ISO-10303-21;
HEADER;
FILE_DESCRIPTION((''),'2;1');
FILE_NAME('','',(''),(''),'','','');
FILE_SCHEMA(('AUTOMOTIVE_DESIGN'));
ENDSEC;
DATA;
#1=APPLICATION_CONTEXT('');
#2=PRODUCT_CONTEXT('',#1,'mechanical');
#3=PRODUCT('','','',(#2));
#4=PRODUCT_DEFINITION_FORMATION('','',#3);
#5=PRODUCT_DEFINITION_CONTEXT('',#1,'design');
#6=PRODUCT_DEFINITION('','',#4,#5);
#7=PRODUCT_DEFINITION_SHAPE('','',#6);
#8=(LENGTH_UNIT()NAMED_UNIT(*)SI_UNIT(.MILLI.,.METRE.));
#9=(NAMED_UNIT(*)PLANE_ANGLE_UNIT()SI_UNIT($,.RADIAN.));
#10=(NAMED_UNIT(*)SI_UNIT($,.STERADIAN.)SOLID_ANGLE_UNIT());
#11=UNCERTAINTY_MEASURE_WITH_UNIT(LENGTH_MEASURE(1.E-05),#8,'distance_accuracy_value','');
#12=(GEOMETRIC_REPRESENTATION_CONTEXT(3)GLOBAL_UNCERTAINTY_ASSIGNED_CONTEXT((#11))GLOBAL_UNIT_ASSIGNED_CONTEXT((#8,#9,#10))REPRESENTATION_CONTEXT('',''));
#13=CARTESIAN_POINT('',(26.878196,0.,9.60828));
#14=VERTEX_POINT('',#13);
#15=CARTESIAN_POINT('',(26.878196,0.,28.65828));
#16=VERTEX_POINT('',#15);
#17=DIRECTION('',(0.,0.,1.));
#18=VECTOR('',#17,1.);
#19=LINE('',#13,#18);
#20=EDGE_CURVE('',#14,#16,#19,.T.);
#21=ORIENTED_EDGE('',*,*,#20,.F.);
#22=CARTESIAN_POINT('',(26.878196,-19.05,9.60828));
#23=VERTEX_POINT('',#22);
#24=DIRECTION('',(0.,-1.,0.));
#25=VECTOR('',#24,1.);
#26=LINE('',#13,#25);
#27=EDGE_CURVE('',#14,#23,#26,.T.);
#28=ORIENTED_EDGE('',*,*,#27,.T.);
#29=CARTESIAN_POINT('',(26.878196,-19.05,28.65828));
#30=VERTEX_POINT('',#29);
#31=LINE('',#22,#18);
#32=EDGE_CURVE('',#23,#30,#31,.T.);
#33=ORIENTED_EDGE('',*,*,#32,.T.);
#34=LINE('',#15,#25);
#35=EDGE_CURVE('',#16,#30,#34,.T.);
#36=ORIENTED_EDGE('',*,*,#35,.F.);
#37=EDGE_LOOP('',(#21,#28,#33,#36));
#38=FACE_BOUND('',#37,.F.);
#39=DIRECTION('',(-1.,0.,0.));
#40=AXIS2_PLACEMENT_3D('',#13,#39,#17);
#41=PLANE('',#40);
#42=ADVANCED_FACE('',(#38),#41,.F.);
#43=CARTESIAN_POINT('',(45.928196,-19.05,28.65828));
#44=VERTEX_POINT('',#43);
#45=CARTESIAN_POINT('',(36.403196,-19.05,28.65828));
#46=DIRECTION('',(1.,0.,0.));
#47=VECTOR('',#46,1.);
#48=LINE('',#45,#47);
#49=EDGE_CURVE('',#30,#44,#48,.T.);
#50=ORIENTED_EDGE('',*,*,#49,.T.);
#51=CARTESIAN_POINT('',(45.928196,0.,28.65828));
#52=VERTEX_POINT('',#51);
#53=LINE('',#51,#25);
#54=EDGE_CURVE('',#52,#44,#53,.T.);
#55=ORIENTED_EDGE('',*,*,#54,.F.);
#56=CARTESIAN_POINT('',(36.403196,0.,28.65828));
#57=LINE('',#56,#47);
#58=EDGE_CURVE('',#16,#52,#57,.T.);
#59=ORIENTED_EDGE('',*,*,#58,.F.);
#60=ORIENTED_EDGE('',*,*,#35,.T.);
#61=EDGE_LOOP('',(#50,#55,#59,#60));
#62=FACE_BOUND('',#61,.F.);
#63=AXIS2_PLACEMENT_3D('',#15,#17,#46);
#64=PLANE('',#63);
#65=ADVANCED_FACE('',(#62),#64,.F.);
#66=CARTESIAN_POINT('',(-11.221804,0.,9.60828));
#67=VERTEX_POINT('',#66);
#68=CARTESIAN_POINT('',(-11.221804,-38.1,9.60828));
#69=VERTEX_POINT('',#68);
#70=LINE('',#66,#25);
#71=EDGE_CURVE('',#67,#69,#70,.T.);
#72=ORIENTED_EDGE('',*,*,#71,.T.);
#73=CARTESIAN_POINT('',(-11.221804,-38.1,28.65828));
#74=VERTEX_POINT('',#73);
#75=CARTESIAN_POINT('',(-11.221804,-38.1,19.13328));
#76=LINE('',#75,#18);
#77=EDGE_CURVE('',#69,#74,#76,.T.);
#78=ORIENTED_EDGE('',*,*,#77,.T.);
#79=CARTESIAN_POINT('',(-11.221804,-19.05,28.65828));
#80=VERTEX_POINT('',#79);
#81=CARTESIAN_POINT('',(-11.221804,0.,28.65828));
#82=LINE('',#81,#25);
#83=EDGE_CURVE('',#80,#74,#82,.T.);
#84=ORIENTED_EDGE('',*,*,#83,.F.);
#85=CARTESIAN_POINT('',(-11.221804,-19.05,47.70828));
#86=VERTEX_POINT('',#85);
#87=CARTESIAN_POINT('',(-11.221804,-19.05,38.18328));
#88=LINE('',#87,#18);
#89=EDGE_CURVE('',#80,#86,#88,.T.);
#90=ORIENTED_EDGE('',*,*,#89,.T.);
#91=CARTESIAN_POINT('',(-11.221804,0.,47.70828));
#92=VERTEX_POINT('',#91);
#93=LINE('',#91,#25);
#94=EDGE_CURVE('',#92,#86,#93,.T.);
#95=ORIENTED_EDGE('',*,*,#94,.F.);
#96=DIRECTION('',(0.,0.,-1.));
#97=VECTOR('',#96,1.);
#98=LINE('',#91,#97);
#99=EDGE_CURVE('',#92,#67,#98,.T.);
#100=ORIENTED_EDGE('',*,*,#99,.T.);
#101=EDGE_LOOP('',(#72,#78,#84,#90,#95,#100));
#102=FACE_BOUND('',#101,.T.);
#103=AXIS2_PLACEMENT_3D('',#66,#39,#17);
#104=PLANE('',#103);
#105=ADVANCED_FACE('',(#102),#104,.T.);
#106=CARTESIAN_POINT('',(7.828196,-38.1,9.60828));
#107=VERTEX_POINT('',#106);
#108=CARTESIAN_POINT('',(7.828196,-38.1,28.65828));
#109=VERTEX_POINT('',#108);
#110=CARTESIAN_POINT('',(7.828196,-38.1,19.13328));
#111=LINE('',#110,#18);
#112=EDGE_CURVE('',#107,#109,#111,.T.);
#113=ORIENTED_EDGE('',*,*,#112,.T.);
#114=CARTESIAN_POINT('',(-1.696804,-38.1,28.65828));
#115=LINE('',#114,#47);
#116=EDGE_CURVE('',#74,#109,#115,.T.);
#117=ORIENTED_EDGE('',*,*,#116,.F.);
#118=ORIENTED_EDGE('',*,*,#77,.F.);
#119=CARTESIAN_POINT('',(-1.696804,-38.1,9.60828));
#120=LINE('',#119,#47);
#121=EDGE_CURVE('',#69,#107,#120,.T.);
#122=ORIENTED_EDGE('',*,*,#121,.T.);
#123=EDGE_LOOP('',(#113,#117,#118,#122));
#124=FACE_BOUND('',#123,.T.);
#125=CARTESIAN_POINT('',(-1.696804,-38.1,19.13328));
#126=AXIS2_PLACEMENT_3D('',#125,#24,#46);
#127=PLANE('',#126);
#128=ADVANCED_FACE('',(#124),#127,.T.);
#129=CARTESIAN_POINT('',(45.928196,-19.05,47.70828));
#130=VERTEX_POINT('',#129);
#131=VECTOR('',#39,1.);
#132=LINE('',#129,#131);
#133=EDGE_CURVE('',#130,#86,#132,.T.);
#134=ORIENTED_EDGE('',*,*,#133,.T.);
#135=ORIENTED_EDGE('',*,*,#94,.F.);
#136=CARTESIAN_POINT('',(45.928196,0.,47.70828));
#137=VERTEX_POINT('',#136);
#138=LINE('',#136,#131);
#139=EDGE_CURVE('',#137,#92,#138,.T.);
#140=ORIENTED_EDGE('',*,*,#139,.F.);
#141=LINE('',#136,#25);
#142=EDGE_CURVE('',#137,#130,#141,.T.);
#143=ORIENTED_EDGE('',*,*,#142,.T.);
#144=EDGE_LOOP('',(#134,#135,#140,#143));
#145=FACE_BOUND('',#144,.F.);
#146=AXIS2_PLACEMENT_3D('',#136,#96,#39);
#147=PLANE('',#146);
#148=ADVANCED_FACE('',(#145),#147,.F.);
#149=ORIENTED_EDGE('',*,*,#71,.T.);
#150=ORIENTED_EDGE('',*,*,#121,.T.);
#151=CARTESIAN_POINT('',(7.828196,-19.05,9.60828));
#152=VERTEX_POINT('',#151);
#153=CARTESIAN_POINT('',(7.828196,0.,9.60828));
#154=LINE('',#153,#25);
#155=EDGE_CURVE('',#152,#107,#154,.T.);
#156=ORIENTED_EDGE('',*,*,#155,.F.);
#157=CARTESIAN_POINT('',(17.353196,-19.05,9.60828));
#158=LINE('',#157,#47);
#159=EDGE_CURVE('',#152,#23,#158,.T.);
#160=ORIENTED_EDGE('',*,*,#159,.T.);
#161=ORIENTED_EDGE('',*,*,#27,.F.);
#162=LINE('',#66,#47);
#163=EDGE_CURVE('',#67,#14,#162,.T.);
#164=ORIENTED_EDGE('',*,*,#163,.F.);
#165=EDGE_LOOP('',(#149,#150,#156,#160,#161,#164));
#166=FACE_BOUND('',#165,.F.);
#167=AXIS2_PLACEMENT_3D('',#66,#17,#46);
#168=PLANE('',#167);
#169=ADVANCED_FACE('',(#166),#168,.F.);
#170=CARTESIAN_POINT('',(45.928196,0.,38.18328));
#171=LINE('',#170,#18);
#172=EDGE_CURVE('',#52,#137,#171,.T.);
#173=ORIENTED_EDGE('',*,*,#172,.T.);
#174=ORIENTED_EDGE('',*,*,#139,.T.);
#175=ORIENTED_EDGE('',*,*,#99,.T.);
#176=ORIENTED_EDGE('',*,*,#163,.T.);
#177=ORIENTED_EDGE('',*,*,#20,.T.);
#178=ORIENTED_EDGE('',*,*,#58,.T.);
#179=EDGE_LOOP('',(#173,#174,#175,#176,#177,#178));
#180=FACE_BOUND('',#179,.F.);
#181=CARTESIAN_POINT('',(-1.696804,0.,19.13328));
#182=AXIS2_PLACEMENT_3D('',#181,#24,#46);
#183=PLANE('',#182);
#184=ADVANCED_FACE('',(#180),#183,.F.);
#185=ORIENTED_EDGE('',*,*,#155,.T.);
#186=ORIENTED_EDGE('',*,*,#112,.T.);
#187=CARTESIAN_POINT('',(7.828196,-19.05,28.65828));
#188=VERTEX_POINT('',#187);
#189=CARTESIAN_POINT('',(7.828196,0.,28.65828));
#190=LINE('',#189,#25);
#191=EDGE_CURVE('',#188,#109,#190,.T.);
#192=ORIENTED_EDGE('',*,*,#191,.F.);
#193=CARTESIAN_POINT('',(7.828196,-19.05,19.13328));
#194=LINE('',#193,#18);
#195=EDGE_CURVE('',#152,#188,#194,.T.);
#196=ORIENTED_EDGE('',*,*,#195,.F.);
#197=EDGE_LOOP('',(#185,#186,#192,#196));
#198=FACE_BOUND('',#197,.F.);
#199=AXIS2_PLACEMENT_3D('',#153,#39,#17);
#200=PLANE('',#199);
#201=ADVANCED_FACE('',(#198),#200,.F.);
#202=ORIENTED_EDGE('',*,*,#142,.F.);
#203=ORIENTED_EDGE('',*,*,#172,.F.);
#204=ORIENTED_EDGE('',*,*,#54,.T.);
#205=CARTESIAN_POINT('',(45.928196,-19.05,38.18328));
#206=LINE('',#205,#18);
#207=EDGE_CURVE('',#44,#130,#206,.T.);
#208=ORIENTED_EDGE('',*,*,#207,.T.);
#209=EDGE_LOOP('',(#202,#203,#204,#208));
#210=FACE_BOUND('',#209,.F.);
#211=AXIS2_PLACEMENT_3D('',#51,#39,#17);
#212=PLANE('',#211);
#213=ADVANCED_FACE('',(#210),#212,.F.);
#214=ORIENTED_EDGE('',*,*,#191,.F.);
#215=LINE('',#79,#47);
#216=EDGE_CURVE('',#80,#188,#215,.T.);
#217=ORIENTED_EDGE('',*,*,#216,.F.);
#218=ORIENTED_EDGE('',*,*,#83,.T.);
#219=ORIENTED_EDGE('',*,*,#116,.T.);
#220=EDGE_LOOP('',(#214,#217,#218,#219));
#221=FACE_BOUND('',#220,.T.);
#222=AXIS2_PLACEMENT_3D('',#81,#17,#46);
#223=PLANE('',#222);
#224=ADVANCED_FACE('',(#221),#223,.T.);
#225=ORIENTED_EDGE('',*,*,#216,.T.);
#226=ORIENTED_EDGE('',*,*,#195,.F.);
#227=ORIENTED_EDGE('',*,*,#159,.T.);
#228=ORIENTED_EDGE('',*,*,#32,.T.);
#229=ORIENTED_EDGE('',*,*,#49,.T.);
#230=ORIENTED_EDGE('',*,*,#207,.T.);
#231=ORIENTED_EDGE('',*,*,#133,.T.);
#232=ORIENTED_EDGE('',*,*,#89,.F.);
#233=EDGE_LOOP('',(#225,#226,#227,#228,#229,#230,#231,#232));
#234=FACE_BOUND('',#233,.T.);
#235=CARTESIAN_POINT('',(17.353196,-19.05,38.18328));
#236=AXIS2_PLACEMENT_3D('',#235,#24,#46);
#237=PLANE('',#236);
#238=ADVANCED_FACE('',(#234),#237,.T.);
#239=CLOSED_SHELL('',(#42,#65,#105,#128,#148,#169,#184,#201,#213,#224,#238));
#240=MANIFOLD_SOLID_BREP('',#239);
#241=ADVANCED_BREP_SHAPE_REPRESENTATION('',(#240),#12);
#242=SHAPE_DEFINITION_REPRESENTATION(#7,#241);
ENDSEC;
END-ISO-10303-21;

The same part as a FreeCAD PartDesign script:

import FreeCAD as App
import Part
import Sketcher

V = App.Vector
Q = App.Units.Quantity

doc = App.newDocument("Part")
body = doc.addObject("PartDesign::Body", "Body")

# Sketch on XZ plane
sketch1 = doc.addObject("Sketcher::SketchObject", "Sketch")
body.addObject(sketch1)
sketch1.AttachmentSupport = (doc.XZ_Plane, [""])
sketch1.MapMode = "FlatFace"
sketch1.addGeometry([
    Part.LineSegment(V(-11, 48, 0), V(-11, 29, 0)),  # 0
    Part.LineSegment(V(-11, 29, 0), V(8, 29, 0)),  # 1
    Part.LineSegment(V(8, 29, 0), V(8, 10, 0)),  # 2
    Part.LineSegment(V(8, 10, 0), V(27, 10, 0)),  # 3
    Part.LineSegment(V(27, 10, 0), V(27, 29, 0)),  # 4
    Part.LineSegment(V(27, 29, 0), V(46, 29, 0)),  # 5
    Part.LineSegment(V(46, 29, 0), V(46, 48, 0)),  # 6
    Part.LineSegment(V(46, 48, 0), V(-11, 48, 0)),  # 7
], False)
sketch1.addConstraint([
    Sketcher.Constraint("Coincident", 0, 2, 1, 1),
    Sketcher.Constraint("Coincident", 1, 2, 2, 1),
    Sketcher.Constraint("Coincident", 2, 2, 3, 1),
    Sketcher.Constraint("Coincident", 3, 2, 4, 1),
    Sketcher.Constraint("Coincident", 4, 2, 5, 1),
    Sketcher.Constraint("Coincident", 5, 2, 6, 1),
    Sketcher.Constraint("Coincident", 6, 2, 7, 1),
    Sketcher.Constraint("Coincident", 7, 2, 0, 1),
    Sketcher.Constraint("Vertical", 0),
    Sketcher.Constraint("Horizontal", 1),
    Sketcher.Constraint("Vertical", 2),
    Sketcher.Constraint("Horizontal", 3),
    Sketcher.Constraint("Vertical", 4),
    Sketcher.Constraint("Horizontal", 5),
    Sketcher.Constraint("Vertical", 6),
    Sketcher.Constraint("Horizontal", 7),
    Sketcher.Constraint("Horizontal", 1, 2, 4, 2),
    Sketcher.Constraint("Equal", 1, 3),
    Sketcher.Constraint("Equal", 3, 5),
    Sketcher.Constraint("Equal", 5, 0),
    Sketcher.Constraint("Equal", 0, 2),
    Sketcher.Constraint("DistanceX", 1, 1, 1, 2, Q("0.75 in")),
    Sketcher.Constraint("DistanceY", -1, 1, 0, 2, 28.65828),
    Sketcher.Constraint("DistanceX", 0, 2, -1, 1, 11.221804),
])
pad1 = doc.addObject("PartDesign::Pad", "Pad")
body.addObject(pad1)
pad1.Profile = sketch1
pad1.Length = Q("0.75 in")

# Sketch on XZ plane
sketch2 = doc.addObject("Sketcher::SketchObject", "Sketch001")
body.addObject(sketch2)
sketch2.AttachmentSupport = (doc.XZ_Plane, [""])
sketch2.MapMode = "FlatFace"
sketch2.addGeometry([
    Part.LineSegment(V(-11, 29, 0), V(-11, 10, 0)),
    Part.LineSegment(V(-11, 10, 0), V(8, 10, 0)),
    Part.LineSegment(V(8, 10, 0), V(8, 29, 0)),
    Part.LineSegment(V(8, 29, 0), V(-11, 29, 0)),
], False)
sketch2.addConstraint([
    Sketcher.Constraint("Coincident", 0, 2, 1, 1),
    Sketcher.Constraint("Coincident", 1, 2, 2, 1),
    Sketcher.Constraint("Coincident", 2, 2, 3, 1),
    Sketcher.Constraint("Coincident", 3, 2, 0, 1),
    Sketcher.Constraint("Vertical", 0),
    Sketcher.Constraint("Horizontal", 1),
    Sketcher.Constraint("Vertical", 2),
    Sketcher.Constraint("Horizontal", 3),
    Sketcher.Constraint("Equal", 3, 0),
    Sketcher.Constraint("DistanceX", 1, 1, 1, 2, Q("0.75 in")),
    Sketcher.Constraint("DistanceY", -1, 1, 0, 2, 9.60828),
    Sketcher.Constraint("DistanceX", 0, 2, -1, 1, 11.221804),
])
pad2 = doc.addObject("PartDesign::Pad", "Pad001")
body.addObject(pad2)
pad2.Profile = sketch2
pad2.Length = Q("1.5 in")

doc.recompute()
